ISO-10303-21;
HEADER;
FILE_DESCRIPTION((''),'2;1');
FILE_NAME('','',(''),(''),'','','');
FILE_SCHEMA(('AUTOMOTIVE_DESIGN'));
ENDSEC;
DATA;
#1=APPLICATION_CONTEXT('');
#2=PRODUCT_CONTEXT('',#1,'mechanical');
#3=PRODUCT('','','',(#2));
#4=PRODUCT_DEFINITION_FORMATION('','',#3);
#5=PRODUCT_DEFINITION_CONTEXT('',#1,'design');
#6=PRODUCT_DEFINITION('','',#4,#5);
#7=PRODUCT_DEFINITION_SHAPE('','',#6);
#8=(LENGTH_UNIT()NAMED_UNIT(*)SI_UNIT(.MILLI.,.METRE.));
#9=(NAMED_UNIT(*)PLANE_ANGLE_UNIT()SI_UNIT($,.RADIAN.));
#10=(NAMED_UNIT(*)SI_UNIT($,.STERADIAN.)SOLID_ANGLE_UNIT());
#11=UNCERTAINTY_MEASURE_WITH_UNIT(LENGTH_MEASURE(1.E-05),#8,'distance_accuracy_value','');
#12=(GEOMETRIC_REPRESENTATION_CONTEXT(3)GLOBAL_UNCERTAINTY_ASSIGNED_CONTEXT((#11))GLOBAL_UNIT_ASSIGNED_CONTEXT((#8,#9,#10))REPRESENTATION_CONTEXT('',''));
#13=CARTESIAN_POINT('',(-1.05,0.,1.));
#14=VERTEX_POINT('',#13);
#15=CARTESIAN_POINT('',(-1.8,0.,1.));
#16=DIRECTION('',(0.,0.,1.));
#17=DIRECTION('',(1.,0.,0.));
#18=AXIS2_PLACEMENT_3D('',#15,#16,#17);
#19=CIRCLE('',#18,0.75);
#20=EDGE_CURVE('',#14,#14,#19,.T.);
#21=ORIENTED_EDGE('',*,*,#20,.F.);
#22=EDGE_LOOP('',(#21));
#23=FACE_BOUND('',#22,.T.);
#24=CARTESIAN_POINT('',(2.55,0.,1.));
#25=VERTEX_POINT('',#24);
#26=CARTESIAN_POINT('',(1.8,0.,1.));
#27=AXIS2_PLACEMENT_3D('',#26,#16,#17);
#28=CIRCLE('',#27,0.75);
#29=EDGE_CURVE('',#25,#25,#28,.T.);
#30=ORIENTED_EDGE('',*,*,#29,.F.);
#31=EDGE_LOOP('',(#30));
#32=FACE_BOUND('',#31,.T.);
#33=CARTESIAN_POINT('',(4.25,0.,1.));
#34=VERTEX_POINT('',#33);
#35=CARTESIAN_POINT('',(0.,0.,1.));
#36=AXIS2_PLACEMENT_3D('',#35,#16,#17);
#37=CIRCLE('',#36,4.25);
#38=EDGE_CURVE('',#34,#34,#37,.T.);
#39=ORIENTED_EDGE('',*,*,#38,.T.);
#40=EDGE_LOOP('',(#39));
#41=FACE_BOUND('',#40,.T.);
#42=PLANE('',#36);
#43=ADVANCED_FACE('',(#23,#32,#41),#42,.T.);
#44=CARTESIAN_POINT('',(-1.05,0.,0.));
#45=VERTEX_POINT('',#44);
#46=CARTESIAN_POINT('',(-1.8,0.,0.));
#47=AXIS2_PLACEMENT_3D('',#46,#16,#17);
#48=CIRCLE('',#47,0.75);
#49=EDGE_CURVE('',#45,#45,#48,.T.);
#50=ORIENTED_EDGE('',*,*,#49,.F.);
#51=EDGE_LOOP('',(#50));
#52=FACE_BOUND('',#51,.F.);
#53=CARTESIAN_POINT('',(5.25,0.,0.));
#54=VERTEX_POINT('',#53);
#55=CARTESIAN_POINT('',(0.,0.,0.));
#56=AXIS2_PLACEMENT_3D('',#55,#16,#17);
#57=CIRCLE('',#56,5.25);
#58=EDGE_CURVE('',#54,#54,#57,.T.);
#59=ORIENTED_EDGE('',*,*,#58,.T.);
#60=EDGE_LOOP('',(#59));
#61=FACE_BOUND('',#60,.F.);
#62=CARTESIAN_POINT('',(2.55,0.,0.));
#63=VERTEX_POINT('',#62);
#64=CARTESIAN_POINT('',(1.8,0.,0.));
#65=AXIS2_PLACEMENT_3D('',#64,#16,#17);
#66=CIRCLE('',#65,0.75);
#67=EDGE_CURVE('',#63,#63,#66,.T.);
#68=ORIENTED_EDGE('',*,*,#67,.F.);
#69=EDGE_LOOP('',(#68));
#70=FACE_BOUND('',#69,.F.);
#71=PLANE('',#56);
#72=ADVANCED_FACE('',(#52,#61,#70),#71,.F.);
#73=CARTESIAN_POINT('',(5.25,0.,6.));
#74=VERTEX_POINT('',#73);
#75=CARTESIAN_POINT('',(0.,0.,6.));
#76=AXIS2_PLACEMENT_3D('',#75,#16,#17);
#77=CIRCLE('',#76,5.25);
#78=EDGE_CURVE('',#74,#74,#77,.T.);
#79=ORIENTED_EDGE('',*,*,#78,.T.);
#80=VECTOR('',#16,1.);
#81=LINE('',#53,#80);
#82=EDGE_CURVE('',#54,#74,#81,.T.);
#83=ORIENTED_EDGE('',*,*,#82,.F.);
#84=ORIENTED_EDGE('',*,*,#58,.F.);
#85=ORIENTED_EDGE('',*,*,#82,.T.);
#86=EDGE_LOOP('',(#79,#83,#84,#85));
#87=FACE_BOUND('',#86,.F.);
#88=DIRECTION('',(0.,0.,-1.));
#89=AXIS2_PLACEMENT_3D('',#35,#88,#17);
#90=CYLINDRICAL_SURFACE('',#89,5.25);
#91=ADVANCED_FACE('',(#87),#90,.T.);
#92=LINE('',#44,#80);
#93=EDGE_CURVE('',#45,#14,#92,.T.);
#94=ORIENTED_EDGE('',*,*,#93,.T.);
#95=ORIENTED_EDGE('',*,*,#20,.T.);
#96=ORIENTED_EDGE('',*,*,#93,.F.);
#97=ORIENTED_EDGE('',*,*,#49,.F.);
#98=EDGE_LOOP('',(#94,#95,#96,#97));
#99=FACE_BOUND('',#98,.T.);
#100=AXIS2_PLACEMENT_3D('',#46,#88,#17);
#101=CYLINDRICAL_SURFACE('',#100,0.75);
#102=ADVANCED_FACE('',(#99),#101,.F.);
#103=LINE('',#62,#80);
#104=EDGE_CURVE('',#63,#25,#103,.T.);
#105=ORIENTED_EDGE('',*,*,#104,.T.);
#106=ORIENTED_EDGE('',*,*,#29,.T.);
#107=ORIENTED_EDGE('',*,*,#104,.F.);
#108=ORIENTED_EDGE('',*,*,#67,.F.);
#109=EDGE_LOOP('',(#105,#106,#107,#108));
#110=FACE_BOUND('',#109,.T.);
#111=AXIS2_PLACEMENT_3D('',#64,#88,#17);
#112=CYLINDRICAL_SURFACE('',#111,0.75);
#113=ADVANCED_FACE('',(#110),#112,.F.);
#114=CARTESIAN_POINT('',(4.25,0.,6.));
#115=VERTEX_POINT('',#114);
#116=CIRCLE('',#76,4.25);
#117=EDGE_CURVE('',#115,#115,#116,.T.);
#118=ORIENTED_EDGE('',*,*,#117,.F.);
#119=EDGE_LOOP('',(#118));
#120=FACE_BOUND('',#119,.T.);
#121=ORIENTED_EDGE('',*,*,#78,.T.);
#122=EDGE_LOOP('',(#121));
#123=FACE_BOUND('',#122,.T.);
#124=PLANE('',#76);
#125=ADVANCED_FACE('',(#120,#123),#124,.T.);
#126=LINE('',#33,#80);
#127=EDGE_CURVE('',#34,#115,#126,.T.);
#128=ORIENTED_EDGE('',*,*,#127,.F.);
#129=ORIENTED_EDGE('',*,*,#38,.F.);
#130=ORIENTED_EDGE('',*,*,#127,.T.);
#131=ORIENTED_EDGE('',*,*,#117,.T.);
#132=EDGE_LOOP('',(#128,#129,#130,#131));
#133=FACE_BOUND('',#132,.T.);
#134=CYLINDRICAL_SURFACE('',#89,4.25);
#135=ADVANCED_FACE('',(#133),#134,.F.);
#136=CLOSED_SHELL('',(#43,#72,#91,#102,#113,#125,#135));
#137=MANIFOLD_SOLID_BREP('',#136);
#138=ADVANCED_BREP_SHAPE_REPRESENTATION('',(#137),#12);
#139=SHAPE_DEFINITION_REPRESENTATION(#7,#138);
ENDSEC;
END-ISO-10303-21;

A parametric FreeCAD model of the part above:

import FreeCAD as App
import Part
import Sketcher

V = App.Vector

doc = App.newDocument("Part")
body = doc.addObject("PartDesign::Body", "Body")

# Sketch on XY plane
sketch1 = body.newObject("Sketcher::SketchObject", "Sketch")
sketch1.AttachmentSupport = (doc.getObject("XY_Plane"), [""])
sketch1.MapMode = "FlatFace"
sketch1.addGeometry([
    Part.Circle(V(0, 0, 0), V(0, 0, 1), 5.2),
    Part.Circle(V(-1.8, 0, 0), V(0, 0, 1), 0.8),
    Part.Circle(V(1.8, 0, 0), V(0, 0, 1), 0.8),
], False)
sketch1.addConstraint([
    Sketcher.Constraint("Coincident", 0, 3, -1, 1),
    Sketcher.Constraint("Equal", 1, 2),
    Sketcher.Constraint("Symmetric", 1, 3, 2, 3, -1, 1),
    Sketcher.Constraint("PointOnObject", 1, 3, -1),
    Sketcher.Constraint("Diameter", 1, 1.5),
    Sketcher.Constraint("Diameter", 0, 10.5),
    Sketcher.Constraint("DistanceX", 1, 3, 2, 3, 3.6),
])
pad1 = body.newObject("PartDesign::Pad", "Pad")
pad1.Profile = sketch1
pad1.Length = 1

# Sketch on XY plane
sketch2 = body.newObject("Sketcher::SketchObject", "Sketch001")
sketch2.AttachmentSupport = (doc.getObject("XY_Plane"), [""])
sketch2.MapMode = "FlatFace"
sketch2.AttachmentOffset = App.Placement(V(0, 0, 1), App.Rotation())
sketch2.addGeometry([
    Part.Circle(V(0, 0, 0), V(0, 0, 1), 5.2),
    Part.Circle(V(0, 0, 0), V(0, 0, 1), 4.2),
], False)
sketch2.addConstraint([
    Sketcher.Constraint("Coincident", 0, 3, -1, 1),
    Sketcher.Constraint("Coincident", 1, 3, -1, 1),
    Sketcher.Constraint("Diameter", 1, 8.5),
    Sketcher.Constraint("Diameter", 0, 10.5),
])
pad2 = body.newObject("PartDesign::Pad", "Pad001")
pad2.Profile = sketch2
pad2.Length = 5

doc.recompute()
